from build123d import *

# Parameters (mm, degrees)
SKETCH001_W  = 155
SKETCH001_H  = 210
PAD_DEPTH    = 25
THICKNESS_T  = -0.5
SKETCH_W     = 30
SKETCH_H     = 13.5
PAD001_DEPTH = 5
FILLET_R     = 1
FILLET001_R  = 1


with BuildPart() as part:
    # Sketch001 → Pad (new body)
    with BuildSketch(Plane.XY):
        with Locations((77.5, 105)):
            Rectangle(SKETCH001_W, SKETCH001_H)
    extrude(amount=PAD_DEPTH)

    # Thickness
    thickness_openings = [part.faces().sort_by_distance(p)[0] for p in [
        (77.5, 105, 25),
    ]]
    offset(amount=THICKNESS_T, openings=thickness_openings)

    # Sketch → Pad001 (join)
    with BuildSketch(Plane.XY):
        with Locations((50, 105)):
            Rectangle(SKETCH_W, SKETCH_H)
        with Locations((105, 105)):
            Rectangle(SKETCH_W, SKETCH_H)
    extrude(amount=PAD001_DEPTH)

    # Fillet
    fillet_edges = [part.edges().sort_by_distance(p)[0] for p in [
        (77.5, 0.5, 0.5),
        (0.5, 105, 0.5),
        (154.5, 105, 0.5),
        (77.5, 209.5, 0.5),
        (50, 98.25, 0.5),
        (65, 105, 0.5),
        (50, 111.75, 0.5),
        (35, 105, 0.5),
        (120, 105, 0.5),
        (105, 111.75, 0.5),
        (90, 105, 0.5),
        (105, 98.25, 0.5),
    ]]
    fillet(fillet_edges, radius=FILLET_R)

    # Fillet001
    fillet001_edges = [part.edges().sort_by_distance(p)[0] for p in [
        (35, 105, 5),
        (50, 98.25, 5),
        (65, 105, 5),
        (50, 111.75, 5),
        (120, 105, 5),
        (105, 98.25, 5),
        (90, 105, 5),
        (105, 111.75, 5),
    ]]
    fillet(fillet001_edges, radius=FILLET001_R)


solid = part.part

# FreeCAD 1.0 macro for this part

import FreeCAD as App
import Part
import Sketcher
from FreeCAD import Vector


def edges_at(feature, points):
    """Names of the edges that pass closest to the given points."""
    edges = feature.Shape.Edges
    near = lambda p: min(range(len(edges)), key=lambda i: edges[i].distToShape(Part.Vertex(*p))[0])
    return sorted({f"Edge{near(p) + 1}" for p in points})


def faces_at(feature, points):
    """Names of the faces that lie closest to the given points."""
    faces = feature.Shape.Faces
    near = lambda p: min(range(len(faces)), key=lambda i: faces[i].distToShape(Part.Vertex(*p))[0])
    return sorted({f"Face{near(p) + 1}" for p in points})

doc = App.newDocument("Part")
params = doc.addObject("Spreadsheet::Sheet", "Params")
for row, (alias, value) in enumerate([
    ("sketch1_width", "155 mm"),
    ("sketch1_height", "210 mm"),
    ("pad1_length", "25 mm"),
    ("thickness_wall", "0.5 mm"),
    ("sketch2_width", "30 mm"),
    ("sketch2_height", "13.5 mm"),
    ("pad2_length", "5 mm"),
    ("fillet_radius", "1 mm"),
    ("fillet2_radius", "1 mm"),
], start=1):
    params.set(f"A{row}", alias)
    params.set(f"B{row}", "=" + value)
    params.setAlias(f"B{row}", alias)

body = doc.addObject("PartDesign::Body", "Body")

# Sketch on XY plane
sketch1 = body.newObject("Sketcher::SketchObject", "Sketch")
sketch1.AttachmentSupport = (doc.getObject("XY_Plane"), [""])
sketch1.MapMode = "FlatFace"
sketch1.addGeometry([
    Part.LineSegment(Vector(0, 210, 0), Vector(0, 0, 0)),
    Part.LineSegment(Vector(0, 0, 0), Vector(155, 0, 0)),
    Part.LineSegment(Vector(155, 0, 0), Vector(155, 210, 0)),
    Part.LineSegment(Vector(155, 210, 0), Vector(0, 210, 0)),
], False)
sketch1.addConstraint([
    Sketcher.Constraint("Coincident", 0, 2, 1, 1),
    Sketcher.Constraint("Coincident", 1, 2, 2, 1),
    Sketcher.Constraint("Coincident", 2, 2, 3, 1),
    Sketcher.Constraint("Coincident", 3, 2, 0, 1),
    Sketcher.Constraint("Vertical", 0),
    Sketcher.Constraint("Horizontal", 1),
    Sketcher.Constraint("Vertical", 2),
    Sketcher.Constraint("Horizontal", 3),
    Sketcher.Constraint("Coincident", 0, 2, -1, 1),
    Sketcher.Constraint("DistanceX", 1, 1, 1, 2, 155.0),
    Sketcher.Constraint("DistanceY", 0, 2, 0, 1, 210.0),
])
sketch1.setExpression("Constraints[9]", "Params.sketch1_width")
sketch1.setExpression("Constraints[10]", "Params.sketch1_height")
pad1 = body.newObject("PartDesign::Pad", "Pad")
pad1.Profile = sketch1
pad1.setExpression("Length", "Params.pad1_length")
doc.recompute()

thickness = body.newObject("PartDesign::Thickness", "Thickness")
thickness.Base = (pad1, faces_at(pad1, [(77.5, 105, 25)]))
thickness.setExpression("Value", "Params.thickness_wall")
thickness.Reversed = True
thickness.Join = "Arc"

# Sketch on XY plane
sketch2 = body.newObject("Sketcher::SketchObject", "Sketch001")
sketch2.AttachmentSupport = (doc.getObject("XY_Plane"), [""])
sketch2.MapMode = "FlatFace"
sketch2.addGeometry([
    Part.LineSegment(Vector(35, 112, 0), Vector(35, 98, 0)),  # 0
    Part.LineSegment(Vector(35, 98, 0), Vector(65, 98, 0)),  # 1
    Part.LineSegment(Vector(65, 98, 0), Vector(65, 112, 0)),  # 2
    Part.LineSegment(Vector(65, 112, 0), Vector(35, 112, 0)),  # 3
    Part.LineSegment(Vector(90, 112, 0), Vector(90, 98, 0)),  # 4
    Part.LineSegment(Vector(90, 98, 0), Vector(120, 98, 0)),  # 5
    Part.LineSegment(Vector(120, 98, 0), Vector(120, 112, 0)),  # 6
    Part.LineSegment(Vector(120, 112, 0), Vector(90, 112, 0)),  # 7
], False)
sketch2.addConstraint([
    Sketcher.Constraint("Coincident", 0, 2, 1, 1),
    Sketcher.Constraint("Coincident", 1, 2, 2, 1),
    Sketcher.Constraint("Coincident", 2, 2, 3, 1),
    Sketcher.Constraint("Coincident", 3, 2, 0, 1),
    Sketcher.Constraint("Coincident", 4, 2, 5, 1),
    Sketcher.Constraint("Coincident", 5, 2, 6, 1),
    Sketcher.Constraint("Coincident", 6, 2, 7, 1),
    Sketcher.Constraint("Coincident", 7, 2, 4, 1),
    Sketcher.Constraint("Vertical", 0),
    Sketcher.Constraint("Horizontal", 1),
    Sketcher.Constraint("Vertical", 2),
    Sketcher.Constraint("Horizontal", 3),
    Sketcher.Constraint("Vertical", 4),
    Sketcher.Constraint("Horizontal", 5),
    Sketcher.Constraint("Vertical", 6),
    Sketcher.Constraint("Horizontal", 7),
    Sketcher.Constraint("Horizontal", 1, 2, 4, 2),
    Sketcher.Constraint("Horizontal", 3, 2, 6, 2),
    Sketcher.Constraint("Equal", 3, 5),
    Sketcher.Constraint("DistanceX", 1, 1, 1, 2, 30.0),
    Sketcher.Constraint("DistanceY", 0, 2, 0, 1, 13.5),
    Sketcher.Constraint("DistanceX", -1, 1, 0, 2, 35.0),
    Sketcher.Constraint("DistanceX", -1, 1, 4, 2, 90.0),
    Sketcher.Constraint("DistanceY", -1, 1, 0, 2, 98.25),
])
sketch2.setExpression("Constraints[19]", "Params.sketch2_width")
sketch2.setExpression("Constraints[20]", "Params.sketch2_height")
pad2 = body.newObject("PartDesign::Pad", "Pad001")
pad2.Profile = sketch2
pad2.setExpression("Length", "Params.pad2_length")
doc.recompute()

fillet = body.newObject("PartDesign::Fillet", "Fillet")
fillet.Base = (pad2, edges_at(pad2, [
    (77.5, 0.5, 0.5),
    (0.5, 105, 0.5),
    (154.5, 105, 0.5),
    (77.5, 209.5, 0.5),
    (50, 98.25, 0.5),
    (65, 105, 0.5),
    (50, 111.75, 0.5),
    (35, 105, 0.5),
    (120, 105, 0.5),
    (105, 111.75, 0.5),
    (90, 105, 0.5),
    (105, 98.25, 0.5),
]))
fillet.setExpression("Radius", "Params.fillet_radius")
doc.recompute()

fillet2 = body.newObject("PartDesign::Fillet", "Fillet001")
fillet2.Base = (fillet, edges_at(fillet, [
    (35, 105, 5),
    (50, 98.25, 5),
    (65, 105, 5),
    (50, 111.75, 5),
    (120, 105, 5),
    (105, 98.25, 5),
    (90, 105, 5),
    (105, 111.75, 5),
]))
fillet2.setExpression("Radius", "Params.fillet2_radius")

doc.recompute()
